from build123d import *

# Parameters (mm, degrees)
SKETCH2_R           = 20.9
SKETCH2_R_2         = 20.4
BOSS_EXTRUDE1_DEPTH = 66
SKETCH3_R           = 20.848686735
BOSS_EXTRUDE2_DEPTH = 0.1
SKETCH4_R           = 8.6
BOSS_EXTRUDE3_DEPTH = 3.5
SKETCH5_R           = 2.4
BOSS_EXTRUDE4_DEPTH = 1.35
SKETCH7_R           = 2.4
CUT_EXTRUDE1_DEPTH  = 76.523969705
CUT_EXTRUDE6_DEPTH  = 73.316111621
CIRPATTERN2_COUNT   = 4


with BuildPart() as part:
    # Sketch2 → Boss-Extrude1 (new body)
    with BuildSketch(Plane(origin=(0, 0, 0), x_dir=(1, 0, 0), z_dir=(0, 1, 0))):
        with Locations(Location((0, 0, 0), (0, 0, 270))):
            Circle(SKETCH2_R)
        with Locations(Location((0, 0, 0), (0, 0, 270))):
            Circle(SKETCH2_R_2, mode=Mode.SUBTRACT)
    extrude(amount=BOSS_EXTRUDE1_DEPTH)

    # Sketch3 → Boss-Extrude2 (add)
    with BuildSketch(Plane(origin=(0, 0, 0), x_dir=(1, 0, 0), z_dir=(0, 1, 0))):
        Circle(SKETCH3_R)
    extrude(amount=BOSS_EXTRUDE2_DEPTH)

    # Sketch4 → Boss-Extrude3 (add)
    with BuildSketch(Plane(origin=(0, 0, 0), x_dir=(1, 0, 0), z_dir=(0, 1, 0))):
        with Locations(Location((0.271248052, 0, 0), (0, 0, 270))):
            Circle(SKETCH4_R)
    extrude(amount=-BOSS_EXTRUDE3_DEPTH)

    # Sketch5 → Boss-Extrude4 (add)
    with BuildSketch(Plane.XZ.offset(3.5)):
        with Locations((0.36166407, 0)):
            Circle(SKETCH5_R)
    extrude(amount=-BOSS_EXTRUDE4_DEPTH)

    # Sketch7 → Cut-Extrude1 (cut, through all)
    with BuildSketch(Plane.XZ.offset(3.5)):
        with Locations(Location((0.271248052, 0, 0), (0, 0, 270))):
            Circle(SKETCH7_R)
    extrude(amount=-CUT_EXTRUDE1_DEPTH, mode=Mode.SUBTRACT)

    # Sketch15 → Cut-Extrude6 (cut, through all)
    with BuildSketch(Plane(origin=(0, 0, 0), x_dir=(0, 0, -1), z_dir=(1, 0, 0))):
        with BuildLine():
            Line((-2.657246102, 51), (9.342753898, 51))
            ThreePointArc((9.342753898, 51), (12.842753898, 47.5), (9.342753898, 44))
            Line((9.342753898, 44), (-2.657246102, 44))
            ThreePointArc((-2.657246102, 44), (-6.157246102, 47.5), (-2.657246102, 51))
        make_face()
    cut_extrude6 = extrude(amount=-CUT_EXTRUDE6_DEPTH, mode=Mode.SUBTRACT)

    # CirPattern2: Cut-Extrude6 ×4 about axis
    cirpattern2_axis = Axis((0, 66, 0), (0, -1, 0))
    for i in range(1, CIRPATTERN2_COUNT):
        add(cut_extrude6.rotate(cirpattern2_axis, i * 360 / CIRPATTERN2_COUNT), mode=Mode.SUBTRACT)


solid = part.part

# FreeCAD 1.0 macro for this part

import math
import FreeCAD as App
import Part
import Sketcher
from FreeCAD import Vector

doc = App.newDocument("Part")
body = doc.addObject("PartDesign::Body", "Body")

# Sketch on XZ plane
sketch1 = body.newObject("Sketcher::SketchObject", "Sketch")
sketch1.AttachmentSupport = (doc.getObject("XZ_Plane"), [""])
sketch1.MapMode = "FlatFace"
sketch1.addGeometry([
    Part.Circle(Vector(0, 0, 0), Vector(0, 0, 1), 20.9),
    Part.Circle(Vector(0, 0, 0), Vector(0, 0, 1), 20.4),
], False)
sketch1.addConstraint([
    Sketcher.Constraint("Coincident", 0, 3, -1, 1),
    Sketcher.Constraint("Coincident", 1, 3, -1, 1),
    Sketcher.Constraint("Diameter", 0, 41.8),
    Sketcher.Constraint("Diameter", 1, 40.8),
])
pad1 = body.newObject("PartDesign::Pad", "Pad")
pad1.Profile = sketch1
pad1.Length = 66
pad1.Reversed = True

# Sketch on XZ plane
sketch2 = body.newObject("Sketcher::SketchObject", "Sketch001")
sketch2.AttachmentSupport = (doc.getObject("XZ_Plane"), [""])
sketch2.MapMode = "FlatFace"
sketch2.addGeometry(Part.Circle(Vector(0, 0, 0), Vector(0, 0, 1), 20.848687), False)
sketch2.addConstraint([
    Sketcher.Constraint("Coincident", 0, 3, -1, 1),
    Sketcher.Constraint("Diameter", 0, 41.697373),
])
pad2 = body.newObject("PartDesign::Pad", "Pad001")
pad2.Profile = sketch2
pad2.Length = 0.1
pad2.Reversed = True

# Sketch on XZ plane
sketch3 = body.newObject("Sketcher::SketchObject", "Sketch002")
sketch3.AttachmentSupport = (doc.getObject("XZ_Plane"), [""])
sketch3.MapMode = "FlatFace"
sketch3.addGeometry(Part.Circle(Vector(0.271248, 0, 0), Vector(0, 0, 1), 8.6), False)
sketch3.addConstraint([
    Sketcher.Constraint("PointOnObject", 0, 3, -1),
    Sketcher.Constraint("Diameter", 0, 17.2),
    Sketcher.Constraint("DistanceX", -1, 1, 0, 3, 0.271248),
])
pad3 = body.newObject("PartDesign::Pad", "Pad002")
pad3.Profile = sketch3
pad3.Length = 3.5

# Sketch on XZ plane
sketch4 = body.newObject("Sketcher::SketchObject", "Sketch003")
sketch4.AttachmentSupport = (doc.getObject("XZ_Plane"), [""])
sketch4.MapMode = "FlatFace"
sketch4.AttachmentOffset = App.Placement(Vector(0, 0, 3.5), App.Rotation())
sketch4.addGeometry(Part.Circle(Vector(0.361664, 0, 0), Vector(0, 0, 1), 2.4), False)
sketch4.addConstraint([
    Sketcher.Constraint("PointOnObject", 0, 3, -1),
    Sketcher.Constraint("Diameter", 0, 4.8),
    Sketcher.Constraint("DistanceX", -1, 1, 0, 3, 0.361664),
])
pad4 = body.newObject("PartDesign::Pad", "Pad003")
pad4.Profile = sketch4
pad4.Length = 1.35
pad4.Reversed = True

# Sketch on XZ plane
sketch5 = body.newObject("Sketcher::SketchObject", "Sketch004")
sketch5.AttachmentSupport = (doc.getObject("XZ_Plane"), [""])
sketch5.MapMode = "FlatFace"
sketch5.AttachmentOffset = App.Placement(Vector(0, 0, 3.5), App.Rotation())
sketch5.addGeometry(Part.Circle(Vector(0.271248, 0, 0), Vector(0, 0, 1), 2.4), False)
sketch5.addConstraint([
    Sketcher.Constraint("PointOnObject", 0, 3, -1),
    Sketcher.Constraint("Diameter", 0, 4.8),
    Sketcher.Constraint("DistanceX", -1, 1, 0, 3, 0.271248),
])
pocket1 = body.newObject("PartDesign::Pocket", "Pocket")
pocket1.Profile = sketch5
pocket1.Type = "ThroughAll"

# Sketch on YZ plane
sketch6 = body.newObject("Sketcher::SketchObject", "Sketch005")
sketch6.AttachmentSupport = (doc.getObject("YZ_Plane"), [""])
sketch6.MapMode = "FlatFace"
sketch6.addGeometry([
    Part.LineSegment(Vector(51, -9.342754, 0), Vector(51, 2.657246, 0)),
    Part.ArcOfCircle(Part.Circle(Vector(47.5, 2.657246, 0), Vector(0, 0, 1), 3.5), math.radians(0), math.radians(180)),
    Part.LineSegment(Vector(44, 2.657246, 0), Vector(44, -9.342754, 0)),
    Part.ArcOfCircle(Part.Circle(Vector(47.5, -9.342754, 0), Vector(0, 0, 1), 3.5), math.radians(180), math.radians(360)),
], False)
sketch6.addConstraint([
    Sketcher.Constraint("Tangent", 0, 2, 1, 1),
    Sketcher.Constraint("Tangent", 1, 2, 2, 1),
    Sketcher.Constraint("Tangent", 2, 2, 3, 1),
    Sketcher.Constraint("Tangent", 3, 2, 0, 1),
    Sketcher.Constraint("Vertical", 0),
    Sketcher.Constraint("Vertical", 2),
    Sketcher.Constraint("Radius", 1, 3.5),
    Sketcher.Constraint("DistanceY", 0, 1, 0, 2, 12.0),
    Sketcher.Constraint("DistanceX", -1, 1, 0, 2, 51.0),
    Sketcher.Constraint("DistanceY", -1, 1, 1, 3, 2.657246),
])
pocket2 = body.newObject("PartDesign::Pocket", "Pocket001")
pocket2.Profile = sketch6
pocket2.Type = "ThroughAll"
doc.recompute()

polarpattern = body.newObject("PartDesign::PolarPattern", "PolarPattern")
polarpattern.Originals = [pocket2]
polarpattern.Axis = (doc.getObject("Y_Axis"), [""])
polarpattern.Angle = 360
polarpattern.Occurrences = 4
body.Tip = polarpattern

doc.recompute()
